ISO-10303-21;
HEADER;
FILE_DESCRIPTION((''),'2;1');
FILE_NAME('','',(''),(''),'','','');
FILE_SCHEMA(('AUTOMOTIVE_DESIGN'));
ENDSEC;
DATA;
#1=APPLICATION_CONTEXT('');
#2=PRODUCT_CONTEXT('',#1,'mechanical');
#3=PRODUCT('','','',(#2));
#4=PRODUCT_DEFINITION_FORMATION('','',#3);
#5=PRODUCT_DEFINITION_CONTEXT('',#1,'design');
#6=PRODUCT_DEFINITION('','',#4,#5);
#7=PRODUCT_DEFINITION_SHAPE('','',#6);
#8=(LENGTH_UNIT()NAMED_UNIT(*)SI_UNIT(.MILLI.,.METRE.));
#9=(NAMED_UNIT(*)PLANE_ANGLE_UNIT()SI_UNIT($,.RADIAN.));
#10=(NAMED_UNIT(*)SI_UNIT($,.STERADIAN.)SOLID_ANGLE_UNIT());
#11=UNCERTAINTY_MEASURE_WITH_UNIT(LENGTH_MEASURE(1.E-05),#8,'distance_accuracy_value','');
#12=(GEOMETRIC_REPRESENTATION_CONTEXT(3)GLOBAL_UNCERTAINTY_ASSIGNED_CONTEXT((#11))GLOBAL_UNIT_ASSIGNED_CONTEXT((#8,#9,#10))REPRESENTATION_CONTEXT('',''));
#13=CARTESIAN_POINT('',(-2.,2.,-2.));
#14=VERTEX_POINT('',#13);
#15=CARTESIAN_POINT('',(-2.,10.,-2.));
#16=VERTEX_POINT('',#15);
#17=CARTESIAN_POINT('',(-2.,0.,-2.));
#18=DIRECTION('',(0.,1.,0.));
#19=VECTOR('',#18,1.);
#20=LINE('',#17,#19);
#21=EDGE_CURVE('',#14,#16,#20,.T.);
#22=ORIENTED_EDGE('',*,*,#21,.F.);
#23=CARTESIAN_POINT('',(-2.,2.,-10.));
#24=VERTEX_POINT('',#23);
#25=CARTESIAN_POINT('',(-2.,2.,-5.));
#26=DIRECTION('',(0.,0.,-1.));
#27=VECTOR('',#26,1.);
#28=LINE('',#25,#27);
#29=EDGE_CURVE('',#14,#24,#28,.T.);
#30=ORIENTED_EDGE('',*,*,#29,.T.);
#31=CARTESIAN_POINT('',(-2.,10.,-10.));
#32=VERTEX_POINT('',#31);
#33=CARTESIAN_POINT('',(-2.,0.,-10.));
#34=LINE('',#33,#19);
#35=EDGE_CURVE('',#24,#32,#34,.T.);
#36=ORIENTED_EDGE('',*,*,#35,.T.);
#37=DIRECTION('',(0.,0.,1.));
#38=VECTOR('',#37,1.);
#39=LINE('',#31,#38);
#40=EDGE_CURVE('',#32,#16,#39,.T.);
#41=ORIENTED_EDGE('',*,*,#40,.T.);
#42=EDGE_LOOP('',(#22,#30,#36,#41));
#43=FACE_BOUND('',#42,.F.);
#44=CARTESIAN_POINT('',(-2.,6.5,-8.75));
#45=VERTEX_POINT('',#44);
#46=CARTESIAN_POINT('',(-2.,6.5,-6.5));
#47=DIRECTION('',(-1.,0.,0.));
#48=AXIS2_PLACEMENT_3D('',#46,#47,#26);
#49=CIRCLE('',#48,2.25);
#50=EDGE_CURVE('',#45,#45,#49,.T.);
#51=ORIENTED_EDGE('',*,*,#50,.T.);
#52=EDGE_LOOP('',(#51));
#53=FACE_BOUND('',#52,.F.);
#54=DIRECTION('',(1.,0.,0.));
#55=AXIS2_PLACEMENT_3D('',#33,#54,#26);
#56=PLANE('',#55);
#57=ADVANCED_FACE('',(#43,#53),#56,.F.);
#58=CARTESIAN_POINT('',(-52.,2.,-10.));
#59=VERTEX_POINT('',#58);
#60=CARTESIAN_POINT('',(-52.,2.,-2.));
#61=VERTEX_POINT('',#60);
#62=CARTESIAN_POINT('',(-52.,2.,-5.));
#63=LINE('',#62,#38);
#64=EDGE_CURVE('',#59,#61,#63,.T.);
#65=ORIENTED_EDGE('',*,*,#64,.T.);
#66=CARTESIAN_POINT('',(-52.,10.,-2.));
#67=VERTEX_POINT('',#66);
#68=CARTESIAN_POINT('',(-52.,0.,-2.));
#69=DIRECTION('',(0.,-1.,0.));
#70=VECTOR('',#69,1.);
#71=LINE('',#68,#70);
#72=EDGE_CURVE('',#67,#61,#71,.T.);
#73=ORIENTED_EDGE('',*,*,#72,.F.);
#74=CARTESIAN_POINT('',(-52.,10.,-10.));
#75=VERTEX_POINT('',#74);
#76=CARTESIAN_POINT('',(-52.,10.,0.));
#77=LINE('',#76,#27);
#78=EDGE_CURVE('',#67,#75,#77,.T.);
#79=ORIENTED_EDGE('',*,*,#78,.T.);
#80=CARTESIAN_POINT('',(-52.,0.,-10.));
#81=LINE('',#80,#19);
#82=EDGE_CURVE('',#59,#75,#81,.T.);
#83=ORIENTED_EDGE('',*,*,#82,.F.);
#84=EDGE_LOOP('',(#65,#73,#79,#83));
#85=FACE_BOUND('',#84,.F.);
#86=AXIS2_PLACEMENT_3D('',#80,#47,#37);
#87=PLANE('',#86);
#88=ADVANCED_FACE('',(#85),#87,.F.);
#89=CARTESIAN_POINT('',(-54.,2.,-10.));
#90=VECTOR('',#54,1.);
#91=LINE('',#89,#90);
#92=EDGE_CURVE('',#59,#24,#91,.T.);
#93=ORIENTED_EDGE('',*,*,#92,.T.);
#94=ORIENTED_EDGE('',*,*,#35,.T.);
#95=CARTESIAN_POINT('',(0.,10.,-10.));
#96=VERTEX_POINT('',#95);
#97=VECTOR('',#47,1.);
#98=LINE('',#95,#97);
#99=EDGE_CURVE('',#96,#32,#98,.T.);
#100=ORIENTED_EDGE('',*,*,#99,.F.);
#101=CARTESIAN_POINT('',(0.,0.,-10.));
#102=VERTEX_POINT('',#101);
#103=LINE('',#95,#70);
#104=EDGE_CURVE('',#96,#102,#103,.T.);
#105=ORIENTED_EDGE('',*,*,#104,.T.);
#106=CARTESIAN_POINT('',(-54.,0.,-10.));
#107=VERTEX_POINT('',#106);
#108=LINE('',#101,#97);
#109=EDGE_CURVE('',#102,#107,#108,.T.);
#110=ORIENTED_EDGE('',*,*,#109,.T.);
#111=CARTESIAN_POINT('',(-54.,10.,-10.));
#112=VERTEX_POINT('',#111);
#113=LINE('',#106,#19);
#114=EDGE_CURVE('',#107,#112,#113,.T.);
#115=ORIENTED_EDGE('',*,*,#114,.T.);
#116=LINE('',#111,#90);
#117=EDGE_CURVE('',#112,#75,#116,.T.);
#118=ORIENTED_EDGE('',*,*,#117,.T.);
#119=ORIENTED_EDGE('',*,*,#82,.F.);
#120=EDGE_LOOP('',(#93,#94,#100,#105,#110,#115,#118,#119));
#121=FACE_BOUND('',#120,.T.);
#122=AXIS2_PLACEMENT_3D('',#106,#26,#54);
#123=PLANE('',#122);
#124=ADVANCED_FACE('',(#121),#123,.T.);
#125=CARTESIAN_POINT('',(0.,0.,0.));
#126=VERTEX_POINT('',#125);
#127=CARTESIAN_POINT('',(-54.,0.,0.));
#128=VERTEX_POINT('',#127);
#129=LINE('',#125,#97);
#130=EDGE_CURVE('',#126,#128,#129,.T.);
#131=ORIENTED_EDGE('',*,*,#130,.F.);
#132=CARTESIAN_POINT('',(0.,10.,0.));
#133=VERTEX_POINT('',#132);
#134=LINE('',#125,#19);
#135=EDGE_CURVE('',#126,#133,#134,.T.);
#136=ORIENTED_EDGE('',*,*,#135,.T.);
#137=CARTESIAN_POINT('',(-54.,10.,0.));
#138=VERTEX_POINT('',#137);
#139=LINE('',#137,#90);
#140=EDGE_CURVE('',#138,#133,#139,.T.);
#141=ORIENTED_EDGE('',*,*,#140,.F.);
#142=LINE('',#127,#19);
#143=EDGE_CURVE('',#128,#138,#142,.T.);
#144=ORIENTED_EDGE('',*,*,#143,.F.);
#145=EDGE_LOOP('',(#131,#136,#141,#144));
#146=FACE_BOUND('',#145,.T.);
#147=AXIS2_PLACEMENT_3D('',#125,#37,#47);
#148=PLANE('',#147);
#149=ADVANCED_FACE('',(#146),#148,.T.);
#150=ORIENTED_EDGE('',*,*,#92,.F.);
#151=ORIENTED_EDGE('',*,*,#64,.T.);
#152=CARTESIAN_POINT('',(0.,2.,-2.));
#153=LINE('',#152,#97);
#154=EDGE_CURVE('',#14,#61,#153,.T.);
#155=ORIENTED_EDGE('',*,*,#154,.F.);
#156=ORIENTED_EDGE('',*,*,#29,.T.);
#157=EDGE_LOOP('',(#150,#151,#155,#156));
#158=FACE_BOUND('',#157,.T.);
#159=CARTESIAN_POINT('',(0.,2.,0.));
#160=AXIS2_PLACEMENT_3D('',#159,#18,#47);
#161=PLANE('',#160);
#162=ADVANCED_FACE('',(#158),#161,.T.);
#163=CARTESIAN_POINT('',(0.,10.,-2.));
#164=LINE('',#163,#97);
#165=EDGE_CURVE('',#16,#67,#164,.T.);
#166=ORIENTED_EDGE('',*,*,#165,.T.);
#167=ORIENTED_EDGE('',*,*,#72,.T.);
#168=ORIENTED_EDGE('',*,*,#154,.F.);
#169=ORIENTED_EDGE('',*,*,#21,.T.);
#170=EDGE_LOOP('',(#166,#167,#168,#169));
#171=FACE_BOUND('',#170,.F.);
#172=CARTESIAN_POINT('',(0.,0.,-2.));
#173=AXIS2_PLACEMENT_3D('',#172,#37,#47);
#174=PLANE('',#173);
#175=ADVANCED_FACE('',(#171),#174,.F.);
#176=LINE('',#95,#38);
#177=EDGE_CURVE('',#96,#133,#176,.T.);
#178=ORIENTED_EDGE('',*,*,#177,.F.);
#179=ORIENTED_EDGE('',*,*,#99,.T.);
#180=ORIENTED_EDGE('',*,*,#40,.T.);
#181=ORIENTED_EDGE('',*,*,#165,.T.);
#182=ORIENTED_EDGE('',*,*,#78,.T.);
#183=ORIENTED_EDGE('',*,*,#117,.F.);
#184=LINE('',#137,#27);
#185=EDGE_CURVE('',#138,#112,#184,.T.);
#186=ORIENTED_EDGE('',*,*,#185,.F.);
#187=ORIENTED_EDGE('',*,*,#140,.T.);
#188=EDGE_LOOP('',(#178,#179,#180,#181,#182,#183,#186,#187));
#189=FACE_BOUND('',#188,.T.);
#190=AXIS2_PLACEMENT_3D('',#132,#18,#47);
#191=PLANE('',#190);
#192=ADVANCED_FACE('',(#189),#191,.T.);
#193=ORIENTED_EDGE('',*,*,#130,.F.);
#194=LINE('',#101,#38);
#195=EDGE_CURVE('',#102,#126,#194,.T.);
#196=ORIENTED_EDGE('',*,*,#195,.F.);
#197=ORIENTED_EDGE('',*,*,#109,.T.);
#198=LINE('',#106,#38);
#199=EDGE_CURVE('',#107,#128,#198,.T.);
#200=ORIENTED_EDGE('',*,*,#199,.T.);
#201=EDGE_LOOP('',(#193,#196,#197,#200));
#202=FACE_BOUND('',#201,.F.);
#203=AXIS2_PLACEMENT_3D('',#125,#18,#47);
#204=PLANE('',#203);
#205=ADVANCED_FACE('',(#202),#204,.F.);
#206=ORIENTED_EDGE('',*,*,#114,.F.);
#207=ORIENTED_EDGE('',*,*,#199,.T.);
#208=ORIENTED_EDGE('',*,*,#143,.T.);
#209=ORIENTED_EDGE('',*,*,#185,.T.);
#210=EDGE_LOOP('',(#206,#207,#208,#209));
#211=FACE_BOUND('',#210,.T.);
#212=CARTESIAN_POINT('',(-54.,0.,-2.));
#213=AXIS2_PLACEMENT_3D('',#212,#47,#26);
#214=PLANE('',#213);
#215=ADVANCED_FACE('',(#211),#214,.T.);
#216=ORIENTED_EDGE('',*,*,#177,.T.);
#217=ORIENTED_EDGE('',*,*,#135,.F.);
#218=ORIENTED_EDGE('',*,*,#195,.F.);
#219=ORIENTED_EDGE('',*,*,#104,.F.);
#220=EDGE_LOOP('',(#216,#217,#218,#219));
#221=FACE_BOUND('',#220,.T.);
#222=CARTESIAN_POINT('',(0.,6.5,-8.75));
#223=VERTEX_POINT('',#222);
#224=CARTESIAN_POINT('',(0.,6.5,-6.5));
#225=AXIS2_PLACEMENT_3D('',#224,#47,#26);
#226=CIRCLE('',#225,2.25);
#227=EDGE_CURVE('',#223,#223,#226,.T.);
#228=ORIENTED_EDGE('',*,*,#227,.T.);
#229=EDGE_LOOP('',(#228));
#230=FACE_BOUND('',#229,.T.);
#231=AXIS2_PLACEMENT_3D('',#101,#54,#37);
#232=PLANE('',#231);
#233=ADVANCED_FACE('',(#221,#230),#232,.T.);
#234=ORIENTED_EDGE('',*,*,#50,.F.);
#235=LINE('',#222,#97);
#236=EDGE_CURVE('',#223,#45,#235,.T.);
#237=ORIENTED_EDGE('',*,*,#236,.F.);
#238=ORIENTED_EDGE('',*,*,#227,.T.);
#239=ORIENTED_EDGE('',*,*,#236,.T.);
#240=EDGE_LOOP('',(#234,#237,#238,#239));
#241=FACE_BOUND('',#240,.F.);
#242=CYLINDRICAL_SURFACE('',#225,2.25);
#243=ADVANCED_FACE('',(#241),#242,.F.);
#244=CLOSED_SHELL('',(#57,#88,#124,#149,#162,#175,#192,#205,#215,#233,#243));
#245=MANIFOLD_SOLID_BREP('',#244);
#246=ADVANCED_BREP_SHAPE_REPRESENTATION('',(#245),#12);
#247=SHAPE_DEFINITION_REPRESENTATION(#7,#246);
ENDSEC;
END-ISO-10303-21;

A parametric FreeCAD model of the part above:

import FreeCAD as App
import Part
import Sketcher
from FreeCAD import Vector
Q = App.Units.Quantity

doc = App.newDocument("Part")
params = doc.addObject("Spreadsheet::Sheet", "Params")
for row, (alias, value) in enumerate([
    ("sketch1_width", "54 mm"),
    ("pad1_length", "2 mm"),
    ("sketch2_width", "54 mm"),
    ("sketch2_height", "2 mm"),
    ("pad2_length", "10 mm"),
    ("sketch3_width", "10 mm"),
    ("pad3_length", "2 mm"),
    ("sketch4_width", "10 mm"),
    ("pad4_length", "2 mm"),
    ("sketch5_diameter", "4.5 mm"),
    ("hole_diameter", "4.5 mm"),
    ("hole_depth", "2 mm"),
], start=1):
    params.set(f"A{row}", alias)
    params.set(f"B{row}", "=" + value)
    params.setAlias(f"B{row}", alias)

body = doc.addObject("PartDesign::Body", "Body")

# Sketch on XZ plane
sketch1 = body.newObject("Sketcher::SketchObject", "Sketch")
sketch1.AttachmentSupport = (doc.getObject("XZ_Plane"), [""])
sketch1.MapMode = "FlatFace"
sketch1.addGeometry(Part.LineSegment(Vector(-54, -2, 0), Vector(0, -2, 0)), False)
sketch1.addGeometry(Part.LineSegment(Vector(0, -2, 0), Vector(0, -10, 0)), False)
sketch1.addGeometry(Part.LineSegment(Vector(0, -10, 0), Vector(-54, -10, 0)), False)
sketch1.addGeometry(Part.LineSegment(Vector(-54, -10, 0), Vector(-54, -2, 0)), False)
sketch1.addConstraint(Sketcher.Constraint("Coincident", 0, 2, 1, 1))
sketch1.addConstraint(Sketcher.Constraint("Coincident", 1, 2, 2, 1))
sketch1.addConstraint(Sketcher.Constraint("Coincident", 2, 2, 3, 1))
sketch1.addConstraint(Sketcher.Constraint("Coincident", 3, 2, 0, 1))
sketch1.addConstraint(Sketcher.Constraint("Horizontal", 0))
sketch1.addConstraint(Sketcher.Constraint("Vertical", 1))
sketch1.addConstraint(Sketcher.Constraint("Horizontal", 2))
sketch1.addConstraint(Sketcher.Constraint("Vertical", 3))
sketch1.addConstraint(Sketcher.Constraint("PointOnObject", 0, 2, -2))
sketch1.addConstraint(Sketcher.Constraint("DistanceX", 0, 1, 0, 2, Q("54 mm")))
sketch1.addConstraint(Sketcher.Constraint("DistanceY", 0, 2, -1, 1, Q("2 mm")))
sketch1.addConstraint(Sketcher.Constraint("DistanceY", 1, 2, -1, 1, Q("10 mm")))
sketch1.setExpression("Constraints[9]", "Params.sketch1_width")
pad1 = body.newObject("PartDesign::Pad", "Pad")
pad1.Profile = sketch1
pad1.setExpression("Length", "Params.pad1_length")
pad1.Reversed = True

# Sketch on XZ plane
sketch2 = body.newObject("Sketcher::SketchObject", "Sketch001")
sketch2.AttachmentSupport = (doc.getObject("XZ_Plane"), [""])
sketch2.MapMode = "FlatFace"
sketch2.addGeometry(Part.LineSegment(Vector(-54, 0, 0), Vector(0, 0, 0)), False)
sketch2.addGeometry(Part.LineSegment(Vector(0, 0, 0), Vector(0, -2, 0)), False)
sketch2.addGeometry(Part.LineSegment(Vector(0, -2, 0), Vector(-54, -2, 0)), False)
sketch2.addGeometry(Part.LineSegment(Vector(-54, -2, 0), Vector(-54, 0, 0)), False)
sketch2.addConstraint(Sketcher.Constraint("Coincident", 0, 2, 1, 1))
sketch2.addConstraint(Sketcher.Constraint("Coincident", 1, 2, 2, 1))
sketch2.addConstraint(Sketcher.Constraint("Coincident", 2, 2, 3, 1))
sketch2.addConstraint(Sketcher.Constraint("Coincident", 3, 2, 0, 1))
sketch2.addConstraint(Sketcher.Constraint("Horizontal", 0))
sketch2.addConstraint(Sketcher.Constraint("Vertical", 1))
sketch2.addConstraint(Sketcher.Constraint("Horizontal", 2))
sketch2.addConstraint(Sketcher.Constraint("Vertical", 3))
sketch2.addConstraint(Sketcher.Constraint("Coincident", 0, 2, -1, 1))
sketch2.addConstraint(Sketcher.Constraint("DistanceX", 0, 1, 0, 2, Q("54 mm")))
sketch2.addConstraint(Sketcher.Constraint("DistanceY", 1, 2, 1, 1, Q("2 mm")))
sketch2.setExpression("Constraints[9]", "Params.sketch2_width")
sketch2.setExpression("Constraints[10]", "Params.sketch2_height")
pad2 = body.newObject("PartDesign::Pad", "Pad001")
pad2.Profile = sketch2
pad2.setExpression("Length", "Params.pad2_length")
pad2.Reversed = True

# Sketch on YZ plane
sketch3 = body.newObject("Sketcher::SketchObject", "Sketch002")
sketch3.AttachmentSupport = (doc.getObject("YZ_Plane"), [""])
sketch3.MapMode = "FlatFace"
sketch3.addGeometry(Part.LineSegment(Vector(10, 0, 0), Vector(0, 0, 0)), False)
sketch3.addGeometry(Part.LineSegment(Vector(0, 0, 0), Vector(0, -10, 0)), False)
sketch3.addGeometry(Part.LineSegment(Vector(0, -10, 0), Vector(10, -10, 0)), False)
sketch3.addGeometry(Part.LineSegment(Vector(10, -10, 0), Vector(10, 0, 0)), False)
sketch3.addConstraint(Sketcher.Constraint("Coincident", 0, 2, 1, 1))
sketch3.addConstraint(Sketcher.Constraint("Coincident", 1, 2, 2, 1))
sketch3.addConstraint(Sketcher.Constraint("Coincident", 2, 2, 3, 1))
sketch3.addConstraint(Sketcher.Constraint("Coincident", 3, 2, 0, 1))
sketch3.addConstraint(Sketcher.Constraint("Horizontal", 0))
sketch3.addConstraint(Sketcher.Constraint("Vertical", 1))
sketch3.addConstraint(Sketcher.Constraint("Horizontal", 2))
sketch3.addConstraint(Sketcher.Constraint("Vertical", 3))
sketch3.addConstraint(Sketcher.Constraint("Coincident", 0, 2, -1, 1))
sketch3.addConstraint(Sketcher.Constraint("Equal", 2, 1))
sketch3.addConstraint(Sketcher.Constraint("DistanceX", 0, 2, 0, 1, Q("10 mm")))
sketch3.setExpression("Constraints[10]", "Params.sketch3_width")
pad3 = body.newObject("PartDesign::Pad", "Pad002")
pad3.Profile = sketch3
pad3.setExpression("Length", "Params.pad3_length")
pad3.Reversed = True

# Sketch on YZ plane
sketch4 = body.newObject("Sketcher::SketchObject", "Sketch003")
sketch4.AttachmentSupport = (doc.getObject("YZ_Plane"), [""])
sketch4.MapMode = "FlatFace"
sketch4.AttachmentOffset = App.Placement(Vector(0, 0, -54), App.Rotation())
sketch4.addGeometry(Part.LineSegment(Vector(10, -10, 0), Vector(0, -10, 0)), False)
sketch4.addGeometry(Part.LineSegment(Vector(0, -10, 0), Vector(0, 0, 0)), False)
sketch4.addGeometry(Part.LineSegment(Vector(0, 0, 0), Vector(10, 0, 0)), False)
sketch4.addGeometry(Part.LineSegment(Vector(10, 0, 0), Vector(10, -10, 0)), False)
sketch4.addConstraint(Sketcher.Constraint("Coincident", 0, 2, 1, 1))
sketch4.addConstraint(Sketcher.Constraint("Coincident", 1, 2, 2, 1))
sketch4.addConstraint(Sketcher.Constraint("Coincident", 2, 2, 3, 1))
sketch4.addConstraint(Sketcher.Constraint("Coincident", 3, 2, 0, 1))
sketch4.addConstraint(Sketcher.Constraint("Horizontal", 0))
sketch4.addConstraint(Sketcher.Constraint("Vertical", 1))
sketch4.addConstraint(Sketcher.Constraint("Horizontal", 2))
sketch4.addConstraint(Sketcher.Constraint("Vertical", 3))
sketch4.addConstraint(Sketcher.Constraint("Coincident", 1, 2, -1, 1))
sketch4.addConstraint(Sketcher.Constraint("Equal", 2, 1))
sketch4.addConstraint(Sketcher.Constraint("DistanceX", 0, 2, 0, 1, Q("10 mm")))
sketch4.setExpression("Constraints[10]", "Params.sketch4_width")
pad4 = body.newObject("PartDesign::Pad", "Pad003")
pad4.Profile = sketch4
pad4.setExpression("Length", "Params.pad4_length")

# Sketch on YZ plane
sketch5 = body.newObject("Sketcher::SketchObject", "Sketch004")
sketch5.AttachmentSupport = (doc.getObject("YZ_Plane"), [""])
sketch5.MapMode = "FlatFace"
sketch5.addGeometry(Part.Circle(Vector(6.5, -6.5, 0), Vector(0, 0, 1), 2.2), False)
sketch5.addConstraint(Sketcher.Constraint("Diameter", 0, Q("4.5 mm")))
sketch5.addConstraint(Sketcher.Constraint("DistanceX", -1, 1, 0, 3, Q("6.5 mm")))
sketch5.addConstraint(Sketcher.Constraint("DistanceY", 0, 3, -1, 1, Q("6.5 mm")))
sketch5.setExpression("Constraints[0]", "Params.sketch5_diameter")
doc.recompute()
hole = body.newObject("PartDesign::Hole", "Hole")
hole.Profile = sketch5
hole.ThreadType = "None"
hole.setExpression("Diameter", "Params.hole_diameter")
hole.DepthType = "Dimension"
hole.setExpression("Depth", "Params.hole_depth")
hole.DrillPoint = "Flat"

doc.recompute()
